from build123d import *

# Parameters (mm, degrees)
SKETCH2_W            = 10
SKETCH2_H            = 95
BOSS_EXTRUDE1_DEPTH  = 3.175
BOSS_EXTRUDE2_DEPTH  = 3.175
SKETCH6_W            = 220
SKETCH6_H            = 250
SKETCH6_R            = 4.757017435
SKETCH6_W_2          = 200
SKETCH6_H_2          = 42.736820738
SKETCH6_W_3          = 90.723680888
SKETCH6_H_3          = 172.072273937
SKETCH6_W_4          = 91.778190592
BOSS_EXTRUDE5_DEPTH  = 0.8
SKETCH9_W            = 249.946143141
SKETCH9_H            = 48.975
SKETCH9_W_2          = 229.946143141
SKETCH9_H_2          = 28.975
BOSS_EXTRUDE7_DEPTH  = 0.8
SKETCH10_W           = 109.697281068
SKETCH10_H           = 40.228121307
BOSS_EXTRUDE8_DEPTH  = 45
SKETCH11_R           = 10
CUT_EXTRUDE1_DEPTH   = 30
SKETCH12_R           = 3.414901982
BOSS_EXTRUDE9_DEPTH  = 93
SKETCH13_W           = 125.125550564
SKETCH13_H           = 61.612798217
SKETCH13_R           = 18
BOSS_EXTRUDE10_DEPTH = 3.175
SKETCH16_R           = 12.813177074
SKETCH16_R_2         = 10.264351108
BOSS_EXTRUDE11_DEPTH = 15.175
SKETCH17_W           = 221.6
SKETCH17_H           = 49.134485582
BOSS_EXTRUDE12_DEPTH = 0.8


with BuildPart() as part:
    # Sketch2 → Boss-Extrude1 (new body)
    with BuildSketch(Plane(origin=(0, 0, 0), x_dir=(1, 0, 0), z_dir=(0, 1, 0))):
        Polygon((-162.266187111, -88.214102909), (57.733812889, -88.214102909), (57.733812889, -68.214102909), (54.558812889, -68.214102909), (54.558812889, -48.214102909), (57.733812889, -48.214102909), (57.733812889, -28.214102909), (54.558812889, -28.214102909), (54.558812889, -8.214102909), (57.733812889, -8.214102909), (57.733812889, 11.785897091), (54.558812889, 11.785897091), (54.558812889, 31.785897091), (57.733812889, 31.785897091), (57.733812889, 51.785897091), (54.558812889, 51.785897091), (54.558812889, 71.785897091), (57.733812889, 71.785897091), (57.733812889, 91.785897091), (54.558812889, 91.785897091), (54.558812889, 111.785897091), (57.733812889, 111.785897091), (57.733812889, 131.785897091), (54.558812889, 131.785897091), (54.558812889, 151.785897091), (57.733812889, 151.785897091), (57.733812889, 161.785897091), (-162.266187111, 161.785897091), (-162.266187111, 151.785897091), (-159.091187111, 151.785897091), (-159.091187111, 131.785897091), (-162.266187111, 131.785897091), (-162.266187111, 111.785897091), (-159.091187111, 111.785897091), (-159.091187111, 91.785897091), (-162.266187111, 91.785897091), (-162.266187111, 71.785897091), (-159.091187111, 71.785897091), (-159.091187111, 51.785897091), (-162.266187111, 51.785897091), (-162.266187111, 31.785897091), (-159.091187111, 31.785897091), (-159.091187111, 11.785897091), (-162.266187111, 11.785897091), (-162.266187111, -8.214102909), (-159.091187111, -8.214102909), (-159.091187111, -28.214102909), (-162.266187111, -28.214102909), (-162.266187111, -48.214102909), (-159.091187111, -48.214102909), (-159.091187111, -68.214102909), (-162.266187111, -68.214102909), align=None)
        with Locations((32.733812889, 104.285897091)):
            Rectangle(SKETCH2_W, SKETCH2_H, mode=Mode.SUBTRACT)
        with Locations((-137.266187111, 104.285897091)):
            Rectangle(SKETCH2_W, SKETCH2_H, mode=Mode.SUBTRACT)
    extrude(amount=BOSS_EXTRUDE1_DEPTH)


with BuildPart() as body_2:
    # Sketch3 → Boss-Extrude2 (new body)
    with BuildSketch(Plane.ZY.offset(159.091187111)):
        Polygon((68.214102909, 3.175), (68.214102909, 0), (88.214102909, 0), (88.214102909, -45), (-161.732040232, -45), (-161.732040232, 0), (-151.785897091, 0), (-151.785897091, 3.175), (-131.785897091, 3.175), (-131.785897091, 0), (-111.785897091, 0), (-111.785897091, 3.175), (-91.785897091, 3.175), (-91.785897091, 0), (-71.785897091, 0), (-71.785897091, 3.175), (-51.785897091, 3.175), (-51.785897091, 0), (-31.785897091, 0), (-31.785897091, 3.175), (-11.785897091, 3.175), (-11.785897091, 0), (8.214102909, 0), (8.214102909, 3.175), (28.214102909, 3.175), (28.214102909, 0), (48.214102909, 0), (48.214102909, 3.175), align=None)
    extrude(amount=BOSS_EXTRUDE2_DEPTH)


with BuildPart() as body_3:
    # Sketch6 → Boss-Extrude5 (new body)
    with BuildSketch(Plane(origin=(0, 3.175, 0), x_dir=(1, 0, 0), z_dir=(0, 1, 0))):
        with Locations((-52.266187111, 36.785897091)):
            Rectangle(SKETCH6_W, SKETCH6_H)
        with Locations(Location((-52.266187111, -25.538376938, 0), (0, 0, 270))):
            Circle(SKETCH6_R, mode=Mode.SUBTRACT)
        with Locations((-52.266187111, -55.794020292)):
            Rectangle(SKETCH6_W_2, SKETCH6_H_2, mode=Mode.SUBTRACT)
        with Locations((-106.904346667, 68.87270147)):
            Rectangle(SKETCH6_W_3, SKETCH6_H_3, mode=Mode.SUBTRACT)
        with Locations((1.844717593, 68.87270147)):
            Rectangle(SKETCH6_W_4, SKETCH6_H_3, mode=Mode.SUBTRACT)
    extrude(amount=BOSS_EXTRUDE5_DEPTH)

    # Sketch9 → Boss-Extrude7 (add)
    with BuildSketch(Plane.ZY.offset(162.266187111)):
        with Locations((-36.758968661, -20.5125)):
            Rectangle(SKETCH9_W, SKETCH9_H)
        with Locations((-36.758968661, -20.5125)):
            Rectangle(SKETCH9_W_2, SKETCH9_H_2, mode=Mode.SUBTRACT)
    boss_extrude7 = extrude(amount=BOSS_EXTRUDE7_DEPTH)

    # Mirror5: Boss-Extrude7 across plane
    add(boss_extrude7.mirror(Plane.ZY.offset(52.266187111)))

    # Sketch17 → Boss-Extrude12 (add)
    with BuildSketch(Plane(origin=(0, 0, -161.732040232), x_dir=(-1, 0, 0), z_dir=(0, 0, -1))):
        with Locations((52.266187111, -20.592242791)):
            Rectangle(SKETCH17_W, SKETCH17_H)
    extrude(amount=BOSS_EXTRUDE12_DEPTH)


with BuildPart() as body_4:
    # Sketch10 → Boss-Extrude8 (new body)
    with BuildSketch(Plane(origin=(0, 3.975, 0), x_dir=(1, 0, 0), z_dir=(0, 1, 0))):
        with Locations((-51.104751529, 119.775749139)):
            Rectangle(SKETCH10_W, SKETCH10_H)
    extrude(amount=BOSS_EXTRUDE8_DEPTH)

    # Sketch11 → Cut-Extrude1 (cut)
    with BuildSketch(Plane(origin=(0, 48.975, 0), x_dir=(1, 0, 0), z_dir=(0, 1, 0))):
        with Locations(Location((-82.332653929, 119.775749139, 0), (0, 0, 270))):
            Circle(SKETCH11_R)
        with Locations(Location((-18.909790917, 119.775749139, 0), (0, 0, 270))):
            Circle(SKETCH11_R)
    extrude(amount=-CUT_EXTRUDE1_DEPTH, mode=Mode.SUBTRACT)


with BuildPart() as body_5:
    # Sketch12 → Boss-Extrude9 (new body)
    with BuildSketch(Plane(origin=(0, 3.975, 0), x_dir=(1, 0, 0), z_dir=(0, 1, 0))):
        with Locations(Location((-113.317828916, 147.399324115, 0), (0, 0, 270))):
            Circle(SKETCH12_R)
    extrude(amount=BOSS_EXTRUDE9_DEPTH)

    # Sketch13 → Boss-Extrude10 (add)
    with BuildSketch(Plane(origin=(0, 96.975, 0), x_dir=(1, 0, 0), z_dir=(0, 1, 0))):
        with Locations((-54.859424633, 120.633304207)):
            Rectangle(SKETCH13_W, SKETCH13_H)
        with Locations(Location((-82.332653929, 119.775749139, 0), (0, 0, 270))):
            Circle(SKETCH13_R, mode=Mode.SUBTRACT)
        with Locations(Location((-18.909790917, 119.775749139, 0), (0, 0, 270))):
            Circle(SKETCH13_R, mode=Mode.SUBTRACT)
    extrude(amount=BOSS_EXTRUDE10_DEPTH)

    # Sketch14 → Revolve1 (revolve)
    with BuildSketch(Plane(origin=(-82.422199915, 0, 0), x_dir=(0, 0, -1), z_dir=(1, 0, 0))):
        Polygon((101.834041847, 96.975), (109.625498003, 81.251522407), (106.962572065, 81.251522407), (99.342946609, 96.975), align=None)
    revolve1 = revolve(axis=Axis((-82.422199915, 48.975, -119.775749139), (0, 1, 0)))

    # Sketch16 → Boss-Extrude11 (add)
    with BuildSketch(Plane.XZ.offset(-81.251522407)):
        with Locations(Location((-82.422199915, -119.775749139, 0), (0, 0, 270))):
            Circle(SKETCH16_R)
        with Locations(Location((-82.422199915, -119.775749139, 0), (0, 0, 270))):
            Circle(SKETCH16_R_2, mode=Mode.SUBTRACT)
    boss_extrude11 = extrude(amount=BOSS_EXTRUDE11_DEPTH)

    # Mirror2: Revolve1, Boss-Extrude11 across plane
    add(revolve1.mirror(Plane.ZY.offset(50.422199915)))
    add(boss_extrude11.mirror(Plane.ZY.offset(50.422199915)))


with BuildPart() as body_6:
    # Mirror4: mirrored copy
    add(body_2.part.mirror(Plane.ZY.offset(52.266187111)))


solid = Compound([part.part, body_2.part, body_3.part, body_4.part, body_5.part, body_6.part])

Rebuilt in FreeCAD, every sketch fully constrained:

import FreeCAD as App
import Part
import Sketcher
Q = App.Units.Quantity


def add_polygon(sketch, points):
    """Adds a closed chain of lines whose ends are joined by coincident constraints."""
    first, n = sketch.GeometryCount, len(points)
    for a, b in zip(points, points[1:] + points[:1]):
        sketch.addGeometry(Part.LineSegment(App.Vector(*a, 0), App.Vector(*b, 0)), False)
    for i in range(n):
        sketch.addConstraint(Sketcher.Constraint("Coincident", first + i, 2, first + (i + 1) % n, 1))

doc = App.newDocument("Part")
body = doc.addObject("PartDesign::Body", "Body")

# Sketch on XZ plane
sketch1 = body.newObject("Sketcher::SketchObject", "Sketch")
sketch1.AttachmentSupport = (doc.getObject("XZ_Plane"), [""])
sketch1.MapMode = "FlatFace"
add_polygon(sketch1, [(-162.3, 88.2), (57.7, 88.2), (57.7, 68.2), (54.6, 68.2), (54.6, 48.2), (57.7, 48.2), (57.7, 28.2), (54.6, 28.2), (54.6, 8.2), (57.7, 8.2), (57.7, -11.8), (54.6, -11.8), (54.6, -31.8), (57.7, -31.8), (57.7, -51.8), (54.6, -51.8), (54.6, -71.8), (57.7, -71.8), (57.7, -91.8), (54.6, -91.8), (54.6, -111.8), (57.7, -111.8), (57.7, -131.8), (54.6, -131.8), (54.6, -151.8), (57.7, -151.8), (57.7, -161.8), (-162.3, -161.8), (-162.3, -151.8), (-159.1, -151.8), (-159.1, -131.8), (-162.3, -131.8), (-162.3, -111.8), (-159.1, -111.8), (-159.1, -91.8), (-162.3, -91.8), (-162.3, -71.8), (-159.1, -71.8), (-159.1, -51.8), (-162.3, -51.8), (-162.3, -31.8), (-159.1, -31.8), (-159.1, -11.8), (-162.3, -11.8), (-162.3, 8.2), (-159.1, 8.2), (-159.1, 28.2), (-162.3, 28.2), (-162.3, 48.2), (-159.1, 48.2), (-159.1, 68.2), (-162.3, 68.2)])  # lines 0-51
add_polygon(sketch1, [(-132.3, -56.8), (-142.3, -56.8), (-142.3, -151.8), (-132.3, -151.8)])  # lines 52-55
add_polygon(sketch1, [(37.7, -56.8), (27.7, -56.8), (27.7, -151.8), (37.7, -151.8)])  # lines 56-59
sketch1.addConstraint([
    Sketcher.Constraint("Horizontal", 0),
    Sketcher.Constraint("Vertical", 1),
    Sketcher.Constraint("Horizontal", 2),
    Sketcher.Constraint("Vertical", 3),
    Sketcher.Constraint("Horizontal", 4),
    Sketcher.Constraint("Vertical", 5),
    Sketcher.Constraint("Horizontal", 6),
    Sketcher.Constraint("Vertical", 7),
    Sketcher.Constraint("Horizontal", 8),
    Sketcher.Constraint("Vertical", 9),
    Sketcher.Constraint("Horizontal", 10),
    Sketcher.Constraint("Vertical", 11),
    Sketcher.Constraint("Horizontal", 12),
    Sketcher.Constraint("Vertical", 13),
    Sketcher.Constraint("Horizontal", 14),
    Sketcher.Constraint("Vertical", 15),
    Sketcher.Constraint("Horizontal", 16),
    Sketcher.Constraint("Vertical", 17),
    Sketcher.Constraint("Horizontal", 18),
    Sketcher.Constraint("Vertical", 19),
    Sketcher.Constraint("Horizontal", 20),
    Sketcher.Constraint("Vertical", 21),
    Sketcher.Constraint("Horizontal", 22),
    Sketcher.Constraint("Vertical", 23),
    Sketcher.Constraint("Horizontal", 24),
    Sketcher.Constraint("Vertical", 25),
    Sketcher.Constraint("Horizontal", 26),
    Sketcher.Constraint("Vertical", 27),
    Sketcher.Constraint("Horizontal", 28),
    Sketcher.Constraint("Vertical", 29),
    Sketcher.Constraint("Horizontal", 30),
    Sketcher.Constraint("Vertical", 31),
    Sketcher.Constraint("Horizontal", 32),
    Sketcher.Constraint("Vertical", 33),
    Sketcher.Constraint("Horizontal", 34),
    Sketcher.Constraint("Vertical", 35),
    Sketcher.Constraint("Horizontal", 36),
    Sketcher.Constraint("Vertical", 37),
    Sketcher.Constraint("Horizontal", 38),
    Sketcher.Constraint("Vertical", 39),
    Sketcher.Constraint("Horizontal", 40),
    Sketcher.Constraint("Vertical", 41),
    Sketcher.Constraint("Horizontal", 42),
    Sketcher.Constraint("Vertical", 43),
    Sketcher.Constraint("Horizontal", 44),
    Sketcher.Constraint("Vertical", 45),
    Sketcher.Constraint("Horizontal", 46),
    Sketcher.Constraint("Vertical", 47),
    Sketcher.Constraint("Horizontal", 48),
    Sketcher.Constraint("Vertical", 49),
    Sketcher.Constraint("Horizontal", 50),
    Sketcher.Constraint("Vertical", 51),
    Sketcher.Constraint("Horizontal", 52),
    Sketcher.Constraint("Vertical", 53),
    Sketcher.Constraint("Horizontal", 54),
    Sketcher.Constraint("Vertical", 55),
    Sketcher.Constraint("Horizontal", 56),
    Sketcher.Constraint("Vertical", 57),
    Sketcher.Constraint("Horizontal", 58),
    Sketcher.Constraint("Vertical", 59),
    Sketcher.Constraint("Horizontal", 24, 2, 27, 2),
    Sketcher.Constraint("Horizontal", 22, 2, 29, 2),
    Sketcher.Constraint("Horizontal", 20, 2, 31, 2),
    Sketcher.Constraint("Horizontal", 18, 2, 33, 2),
    Sketcher.Constraint("Horizontal", 16, 2, 35, 2),
    Sketcher.Constraint("Horizontal", 14, 2, 37, 2),
    Sketcher.Constraint("Horizontal", 12, 2, 39, 2),
    Sketcher.Constraint("Horizontal", 10, 2, 41, 2),
    Sketcher.Constraint("Horizontal", 8, 2, 43, 2),
    Sketcher.Constraint("Horizontal", 6, 2, 45, 2),
    Sketcher.Constraint("Horizontal", 4, 2, 47, 2),
    Sketcher.Constraint("Horizontal", 2, 2, 49, 2),
    Sketcher.Constraint("Horizontal", 28, 2, 53, 2),
    Sketcher.Constraint("Horizontal", 55, 2, 56, 2),
    Sketcher.Constraint("Horizontal", 54, 2, 57, 2),
    Sketcher.Constraint("Vertical", 1, 2, 4, 2),
    Sketcher.Constraint("Vertical", 3, 2, 6, 2),
    Sketcher.Constraint("Vertical", 5, 2, 8, 2),
    Sketcher.Constraint("Vertical", 7, 2, 10, 2),
    Sketcher.Constraint("Vertical", 9, 2, 12, 2),
    Sketcher.Constraint("Vertical", 11, 2, 14, 2),
    Sketcher.Constraint("Vertical", 13, 2, 16, 2),
    Sketcher.Constraint("Vertical", 15, 2, 18, 2),
    Sketcher.Constraint("Vertical", 17, 2, 20, 2),
    Sketcher.Constraint("Vertical", 19, 2, 22, 2),
    Sketcher.Constraint("Vertical", 21, 2, 24, 2),
    Sketcher.Constraint("Vertical", 27, 2, 30, 2),
    Sketcher.Constraint("Vertical", 29, 2, 32, 2),
    Sketcher.Constraint("Vertical", 31, 2, 34, 2),
    Sketcher.Constraint("Vertical", 33, 2, 36, 2),
    Sketcher.Constraint("Vertical", 35, 2, 38, 2),
    Sketcher.Constraint("Vertical", 37, 2, 40, 2),
    Sketcher.Constraint("Vertical", 39, 2, 42, 2),
    Sketcher.Constraint("Vertical", 41, 2, 44, 2),
    Sketcher.Constraint("Vertical", 43, 2, 46, 2),
    Sketcher.Constraint("Vertical", 45, 2, 48, 2),
    Sketcher.Constraint("Vertical", 47, 2, 50, 2),
    Sketcher.Constraint("Equal", 24, 28),
    Sketcher.Constraint("Equal", 54, 56),
    Sketcher.Constraint("Equal", 1, 3),
    Sketcher.Constraint("Equal", 3, 5),
    Sketcher.Constraint("Equal", 5, 7),
    Sketcher.Constraint("Equal", 7, 9),
    Sketcher.Constraint("Equal", 9, 11),
    Sketcher.Constraint("Equal", 11, 13),
    Sketcher.Constraint("Equal", 13, 15),
    Sketcher.Constraint("Equal", 15, 17),
    Sketcher.Constraint("Equal", 17, 19),
    Sketcher.Constraint("Equal", 19, 21),
    Sketcher.Constraint("Equal", 21, 23),
    Sketcher.Constraint("Equal", 58, 25),
    Sketcher.Constraint("DistanceX", 0, 1, 0, 2, Q("220 mm")),
    Sketcher.Constraint("DistanceX", 52, 2, 52, 1, Q("10 mm")),
    Sketcher.Constraint("DistanceY", 1, 2, 1, 1, Q("20 mm")),
    Sketcher.Constraint("DistanceY", 53, 2, 53, 1, Q("95 mm")),
    Sketcher.Constraint("DistanceX", 38, 2, 52, 2, Q("20 mm")),
    Sketcher.Constraint("DistanceX", 56, 2, 13, 2, Q("30 mm")),
    Sketcher.Constraint("DistanceX", 2, 2, 2, 1, Q("3.175 mm")),
    Sketcher.Constraint("DistanceX", -1, 1, 0, 2, Q("57.733813 mm")),
    Sketcher.Constraint("DistanceY", -1, 1, 0, 2, Q("88.214103 mm")),
])
pad1 = body.newObject("PartDesign::Pad", "Pad")
pad1.Profile = sketch1
pad1.Length = 3.175
pad1.Reversed = True
body2 = doc.addObject("PartDesign::Body", "Body001")

# Sketch on YZ plane
sketch2 = body2.newObject("Sketcher::SketchObject", "Sketch001")
sketch2.AttachmentSupport = (doc.getObject("YZ_Plane001"), [""])
sketch2.MapMode = "FlatFace"
sketch2.AttachmentOffset = App.Placement(App.Vector(0, 0, -159.091187), App.Rotation())
add_polygon(sketch2, [(0, 68.2), (3.2, 68.2), (3.2, 48.2), (0, 48.2), (0, 28.2), (3.2, 28.2), (3.2, 8.2), (0, 8.2), (0, -11.8), (3.2, -11.8), (3.2, -31.8), (0, -31.8), (0, -51.8), (3.2, -51.8), (3.2, -71.8), (0, -71.8), (0, -91.8), (3.2, -91.8), (3.2, -111.8), (0, -111.8), (0, -131.8), (3.2, -131.8), (3.2, -151.8), (0, -151.8), (0, -161.7), (-45, -161.7), (-45, 88.2), (0, 88.2)])  # lines 0-27
sketch2.addConstraint([
    Sketcher.Constraint("Horizontal", 0),
    Sketcher.Constraint("Vertical", 1),
    Sketcher.Constraint("Horizontal", 2),
    Sketcher.Constraint("Vertical", 3),
    Sketcher.Constraint("Horizontal", 4),
    Sketcher.Constraint("Vertical", 5),
    Sketcher.Constraint("Horizontal", 6),
    Sketcher.Constraint("Vertical", 7),
    Sketcher.Constraint("Horizontal", 8),
    Sketcher.Constraint("Vertical", 9),
    Sketcher.Constraint("Horizontal", 10),
    Sketcher.Constraint("Vertical", 11),
    Sketcher.Constraint("Horizontal", 12),
    Sketcher.Constraint("Vertical", 13),
    Sketcher.Constraint("Horizontal", 14),
    Sketcher.Constraint("Vertical", 15),
    Sketcher.Constraint("Horizontal", 16),
    Sketcher.Constraint("Vertical", 17),
    Sketcher.Constraint("Horizontal", 18),
    Sketcher.Constraint("Vertical", 19),
    Sketcher.Constraint("Horizontal", 20),
    Sketcher.Constraint("Vertical", 21),
    Sketcher.Constraint("Horizontal", 22),
    Sketcher.Constraint("Vertical", 23),
    Sketcher.Constraint("Horizontal", 24),
    Sketcher.Constraint("Vertical", 25),
    Sketcher.Constraint("Horizontal", 26),
    Sketcher.Constraint("Vertical", 27),
    Sketcher.Constraint("PointOnObject", 2, 2, -2),
    Sketcher.Constraint("PointOnObject", 6, 2, -2),
    Sketcher.Constraint("PointOnObject", 10, 2, -2),
    Sketcher.Constraint("PointOnObject", 14, 2, -2),
    Sketcher.Constraint("PointOnObject", 18, 2, -2),
    Sketcher.Constraint("PointOnObject", 22, 2, -2),
    Sketcher.Constraint("PointOnObject", 26, 2, -2),
    Sketcher.Constraint("Vertical", 1, 2, 4, 2),
    Sketcher.Constraint("Vertical", 5, 2, 8, 2),
    Sketcher.Constraint("Vertical", 9, 2, 12, 2),
    Sketcher.Constraint("Vertical", 13, 2, 16, 2),
    Sketcher.Constraint("Vertical", 17, 2, 20, 2),
    Sketcher.Constraint("Equal", 1, 3),
    Sketcher.Constraint("Equal", 3, 5),
    Sketcher.Constraint("Equal", 5, 7),
    Sketcher.Constraint("Equal", 7, 9),
    Sketcher.Constraint("Equal", 9, 11),
    Sketcher.Constraint("Equal", 11, 13),
    Sketcher.Constraint("Equal", 13, 15),
    Sketcher.Constraint("Equal", 15, 17),
    Sketcher.Constraint("Equal", 17, 19),
    Sketcher.Constraint("Equal", 19, 21),
    Sketcher.Constraint("Equal", 21, 27),
    Sketcher.Constraint("DistanceX", 24, 2, 24, 1, Q("45 mm")),
    Sketcher.Constraint("DistanceY", 1, 2, 1, 1, Q("20 mm")),
    Sketcher.Constraint("DistanceX", 0, 1, 0, 2, Q("3.175 mm")),
    Sketcher.Constraint("DistanceY", 23, 2, 23, 1, Q("9.946143 mm")),
    Sketcher.Constraint("DistanceY", 23, 2, -1, 1, Q("161.73204 mm")),
])
pad2 = body2.newObject("PartDesign::Pad", "Pad001")
pad2.Profile = sketch2
pad2.Length = 3.175
pad2.Reversed = True
body3 = doc.addObject("PartDesign::Body", "Body002")

# Sketch on XZ plane
sketch3 = body3.newObject("Sketcher::SketchObject", "Sketch002")
sketch3.AttachmentSupport = (doc.getObject("XZ_Plane002"), [""])
sketch3.MapMode = "FlatFace"
sketch3.AttachmentOffset = App.Placement(App.Vector(0, 0, -3.175), App.Rotation())
add_polygon(sketch3, [(-162.3, -161.8), (-162.3, 88.2), (57.7, 88.2), (57.7, -161.8)])  # lines 0-3
add_polygon(sketch3, [(47.7, 77.2), (-152.3, 77.2), (-152.3, 34.4), (47.7, 34.4)])  # lines 4-7
sketch3.addGeometry(Part.Circle(App.Vector(-52.3, 25.5, 0), App.Vector(0, 0, 1), 4.8), False)  # 8
add_polygon(sketch3, [(-61.5, 17.2), (-152.3, 17.2), (-152.3, -154.9), (-61.5, -154.9)])  # lines 9-12
add_polygon(sketch3, [(47.7, 17.2), (-44, 17.2), (-44, -154.9), (47.7, -154.9)])  # lines 13-16
sketch3.addConstraint([
    Sketcher.Constraint("Vertical", 0),
    Sketcher.Constraint("Horizontal", 1),
    Sketcher.Constraint("Vertical", 2),
    Sketcher.Constraint("Horizontal", 3),
    Sketcher.Constraint("Horizontal", 4),
    Sketcher.Constraint("Vertical", 5),
    Sketcher.Constraint("Horizontal", 6),
    Sketcher.Constraint("Vertical", 7),
    Sketcher.Constraint("Horizontal", 9),
    Sketcher.Constraint("Vertical", 10),
    Sketcher.Constraint("Horizontal", 11),
    Sketcher.Constraint("Vertical", 12),
    Sketcher.Constraint("Horizontal", 13),
    Sketcher.Constraint("Vertical", 14),
    Sketcher.Constraint("Horizontal", 15),
    Sketcher.Constraint("Vertical", 16),
    Sketcher.Constraint("Horizontal", 12, 2, 13, 2),
    Sketcher.Constraint("Horizontal", 11, 2, 14, 2),
    Sketcher.Constraint("Vertical", 5, 2, 9, 2),
    Sketcher.Constraint("Vertical", 7, 2, 15, 2),
    Sketcher.Constraint("DistanceX", 1, 1, 1, 2, Q("220 mm")),
    Sketcher.Constraint("DistanceX", 4, 2, 4, 1, Q("200 mm")),
    Sketcher.Constraint("DistanceY", 0, 1, 0, 2, Q("250 mm")),
    Sketcher.Constraint("DistanceX", 0, 2, 8, 3, Q("110 mm")),
    Sketcher.Constraint("DistanceX", 0, 2, 4, 2, Q("10 mm")),
    Sketcher.Constraint("Diameter", 8, Q("9.514035 mm")),
    Sketcher.Constraint("DistanceX", 9, 2, 9, 1, Q("90.723681 mm")),
    Sketcher.Constraint("DistanceX", 13, 2, 13, 1, Q("91.778191 mm")),
    Sketcher.Constraint("DistanceY", 5, 2, 5, 1, Q("42.736821 mm")),
    Sketcher.Constraint("DistanceY", 10, 2, 10, 1, Q("172.072274 mm")),
    Sketcher.Constraint("DistanceY", -1, 1, 4, 2, Q("77.162431 mm")),
    Sketcher.Constraint("DistanceY", 10, 2, -1, 1, Q("154.908838 mm")),
    Sketcher.Constraint("DistanceY", 9, 2, 8, 3, Q("8.374941 mm")),
    Sketcher.Constraint("DistanceY", 3, 2, 10, 2, Q("6.877059 mm")),
    Sketcher.Constraint("DistanceX", 8, 3, -1, 1, Q("52.266187 mm")),
])
pad3 = body3.newObject("PartDesign::Pad", "Pad002")
pad3.Profile = sketch3
pad3.Length = 0.8
pad3.Reversed = True

# Sketch on YZ plane
sketch4 = body3.newObject("Sketcher::SketchObject", "Sketch003")
sketch4.AttachmentSupport = (doc.getObject("YZ_Plane002"), [""])
sketch4.MapMode = "FlatFace"
sketch4.AttachmentOffset = App.Placement(App.Vector(0, 0, -162.266187), App.Rotation())
add_polygon(sketch4, [(4, -162), (-45, -162), (-45, 88), (4, 88)])  # lines 0-3
add_polygon(sketch4, [(-35, 78), (-35, -152), (-6, -152), (-6, 78)])  # lines 4-7
sketch4.addConstraint([
    Sketcher.Constraint("Horizontal", 0),
    Sketcher.Constraint("Vertical", 1),
    Sketcher.Constraint("Horizontal", 2),
    Sketcher.Constraint("Vertical", 3),
    Sketcher.Constraint("Vertical", 4),
    Sketcher.Constraint("Horizontal", 5),
    Sketcher.Constraint("Vertical", 6),
    Sketcher.Constraint("Horizontal", 7),
    Sketcher.Constraint("DistanceX", 0, 2, -1, 1, Q("45 mm")),
    Sketcher.Constraint("DistanceX", 4, 2, -1, 1, Q("35 mm")),
    Sketcher.Constraint("DistanceY", 0, 2, 4, 2, Q("10 mm")),
    Sketcher.Constraint("DistanceX", 5, 2, 3, 2, Q("10 mm")),
    Sketcher.Constraint("DistanceY", 6, 2, 2, 2, Q("10 mm")),
    Sketcher.Constraint("DistanceX", 0, 2, 0, 1, Q("48.975 mm")),
    Sketcher.Constraint("DistanceY", 1, 1, 1, 2, Q("249.946143 mm")),
    Sketcher.Constraint("DistanceY", 0, 2, -1, 1, Q("161.73204 mm")),
])
pad4 = body3.newObject("PartDesign::Pad", "Pad003")
pad4.Profile = sketch4
pad4.Length = 0.8
pad4.Reversed = True
doc.recompute()

datumplane = body3.newObject("PartDesign::Plane", "DatumPlane")
datumplane.AttachmentSupport = (doc.getObject("YZ_Plane002"), [""])
datumplane.MapMode = "FlatFace"
datumplane.AttachmentOffset = App.Placement(App.Vector(0, 0, -52.266187), App.Rotation())
mirrored = body3.newObject("PartDesign::Mirrored", "Mirrored")
mirrored.Originals = [pad4]
mirrored.MirrorPlane = (datumplane, [""])
body3.Tip = mirrored

# Sketch on XY plane
sketch5 = body3.newObject("Sketcher::SketchObject", "Sketch004")
sketch5.AttachmentSupport = (doc.getObject("XY_Plane002"), [""])
sketch5.MapMode = "FlatFace"
sketch5.AttachmentOffset = App.Placement(App.Vector(0, 0, -161.73204), App.Rotation())
add_polygon(sketch5, [(59, 4), (59, -45), (-163, -45), (-163, 4)])  # lines 0-3
sketch5.addConstraint([
    Sketcher.Constraint("Vertical", 0),
    Sketcher.Constraint("Horizontal", 1),
    Sketcher.Constraint("Vertical", 2),
    Sketcher.Constraint("Horizontal", 3),
    Sketcher.Constraint("DistanceX", 1, 2, 1, 1, Q("221.6 mm")),
    Sketcher.Constraint("DistanceY", -1, 1, 2, 2, Q("3.975 mm")),
    Sketcher.Constraint("DistanceY", 0, 2, 0, 1, Q("49.134486 mm")),
    Sketcher.Constraint("DistanceX", -1, 1, 0, 2, Q("58.533813 mm")),
])
pad5 = body3.newObject("PartDesign::Pad", "Pad004")
pad5.Profile = sketch5
pad5.Length = 0.8
pad5.Reversed = True
body4 = doc.addObject("PartDesign::Body", "Body003")

# Sketch on XZ plane
sketch6 = body4.newObject("Sketcher::SketchObject", "Sketch005")
sketch6.AttachmentSupport = (doc.getObject("XZ_Plane003"), [""])
sketch6.MapMode = "FlatFace"
sketch6.AttachmentOffset = App.Placement(App.Vector(0, 0, -3.975), App.Rotation())
add_polygon(sketch6, [(-106, -140), (-106, -100), (4, -100), (4, -140)])  # lines 0-3
sketch6.addConstraint([
    Sketcher.Constraint("Vertical", 0),
    Sketcher.Constraint("Horizontal", 1),
    Sketcher.Constraint("Vertical", 2),
    Sketcher.Constraint("Horizontal", 3),
    Sketcher.Constraint("DistanceX", 1, 1, 1, 2, Q("109.697281 mm")),
    Sketcher.Constraint("DistanceY", 0, 1, 0, 2, Q("40.228121 mm")),
    Sketcher.Constraint("DistanceY", 0, 2, -1, 1, Q("99.661688 mm")),
    Sketcher.Constraint("DistanceX", -1, 1, 1, 2, Q("3.743889 mm")),
])
pad6 = body4.newObject("PartDesign::Pad", "Pad005")
pad6.Profile = sketch6
pad6.Length = 45
pad6.Reversed = True

# Sketch on XZ plane
sketch7 = body4.newObject("Sketcher::SketchObject", "Sketch006")
sketch7.AttachmentSupport = (doc.getObject("XZ_Plane003"), [""])
sketch7.MapMode = "FlatFace"
sketch7.AttachmentOffset = App.Placement(App.Vector(0, 0, -48.975), App.Rotation())
sketch7.addGeometry([
    Part.Circle(App.Vector(-82, -120, 0), App.Vector(0, 0, 1), 10),
    Part.Circle(App.Vector(-19, -120, 0), App.Vector(0, 0, 1), 10),
], False)
sketch7.addConstraint([
    Sketcher.Constraint("Equal", 0, 1),
    Sketcher.Constraint("Horizontal", 0, 3, 1, 3),
    Sketcher.Constraint("Diameter", 0, Q("20 mm")),
    Sketcher.Constraint("DistanceY", 0, 3, -1, 1, Q("119.775749 mm")),
    Sketcher.Constraint("DistanceX", 1, 3, -1, 1, Q("18.909791 mm")),
    Sketcher.Constraint("DistanceX", 0, 3, -1, 1, Q("82.332654 mm")),
])
pocket1 = body4.newObject("PartDesign::Pocket", "Pocket")
pocket1.Profile = sketch7
pocket1.Length = 30
pocket1.Reversed = True
body5 = doc.addObject("PartDesign::Body", "Body004")

# Sketch on XZ plane
sketch8 = body5.newObject("Sketcher::SketchObject", "Sketch007")
sketch8.AttachmentSupport = (doc.getObject("XZ_Plane004"), [""])
sketch8.MapMode = "FlatFace"
sketch8.AttachmentOffset = App.Placement(App.Vector(0, 0, -3.975), App.Rotation())
sketch8.addGeometry(Part.Circle(App.Vector(-113.3, -147.4, 0), App.Vector(0, 0, 1), 3.4), False)
sketch8.addConstraint([
    Sketcher.Constraint("Diameter", 0, Q("6.829804 mm")),
    Sketcher.Constraint("DistanceX", 0, 3, -1, 1, Q("113.317829 mm")),
    Sketcher.Constraint("DistanceY", 0, 3, -1, 1, Q("147.399324 mm")),
])
pad7 = body5.newObject("PartDesign::Pad", "Pad006")
pad7.Profile = sketch8
pad7.Length = 93
pad7.Reversed = True

# Sketch on XZ plane
sketch9 = body5.newObject("Sketcher::SketchObject", "Sketch008")
sketch9.AttachmentSupport = (doc.getObject("XZ_Plane004"), [""])
sketch9.MapMode = "FlatFace"
sketch9.AttachmentOffset = App.Placement(App.Vector(0, 0, -96.975), App.Rotation())
add_polygon(sketch9, [(-117, -151), (-117, -90), (8, -90), (8, -151)])  # lines 0-3
sketch9.addGeometry(Part.Circle(App.Vector(-82, -120, 0), App.Vector(0, 0, 1), 18), False)  # 4
sketch9.addGeometry(Part.Circle(App.Vector(-19, -120, 0), App.Vector(0, 0, 1), 18), False)  # 5
sketch9.addConstraint([
    Sketcher.Constraint("Vertical", 0),
    Sketcher.Constraint("Horizontal", 1),
    Sketcher.Constraint("Vertical", 2),
    Sketcher.Constraint("Horizontal", 3),
    Sketcher.Constraint("Equal", 4, 5),
    Sketcher.Constraint("Horizontal", 4, 3, 5, 3),
    Sketcher.Constraint("Diameter", 4, Q("36 mm")),
    Sketcher.Constraint("DistanceY", 0, 1, 0, 2, Q("61.612798 mm")),
    Sketcher.Constraint("DistanceX", 1, 1, 1, 2, Q("125.125551 mm")),
    Sketcher.Constraint("DistanceX", 0, 2, -1, 1, Q("117.4222 mm")),
    Sketcher.Constraint("DistanceY", 4, 3, -1, 1, Q("119.775749 mm")),
    Sketcher.Constraint("DistanceX", 5, 3, -1, 1, Q("18.909791 mm")),
    Sketcher.Constraint("DistanceX", 4, 3, -1, 1, Q("82.332654 mm")),
    Sketcher.Constraint("DistanceY", 0, 2, -1, 1, Q("89.826905 mm")),
])
pad8 = body5.newObject("PartDesign::Pad", "Pad007")
pad8.Profile = sketch9
pad8.Length = 3.175
pad8.Reversed = True

# Sketch on YZ plane
sketch10 = body5.newObject("Sketcher::SketchObject", "Sketch009")
sketch10.AttachmentSupport = (doc.getObject("YZ_Plane004"), [""])
sketch10.MapMode = "FlatFace"
sketch10.AttachmentOffset = App.Placement(App.Vector(0, 0, -82.4222), App.Rotation())
add_polygon(sketch10, [(81.3, -109.6), (97, -101.8), (97, -99.3), (81.3, -107)])  # lines 0-3
sketch10.addGeometry(Part.LineSegment(App.Vector(81.3, -119.8, 0), App.Vector(97, -119.8, 0)), True)  # axis
sketch10.addConstraint([
    Sketcher.Constraint("Vertical", 1),
    Sketcher.Constraint("Vertical", 3),
    Sketcher.Constraint("Horizontal", 4),
    Sketcher.Constraint("Vertical", 3, 2, 4, 1),
    Sketcher.Constraint("Vertical", 1, 2, 4, 2),
    Sketcher.Constraint("DistanceX", -1, 1, 0, 2, Q("96.975 mm")),
    Sketcher.Constraint("DistanceY", 3, 2, -1, 1, Q("109.625498 mm")),
    Sketcher.Constraint("Distance", 2, Q("17.472448 mm")),
    Sketcher.Constraint("DistanceX", 4, 1, 4, 2, Q("15.723478 mm")),
    Sketcher.Constraint("DistanceY", 1, 1, 1, 2, Q("2.491095 mm")),
    Sketcher.Constraint("DistanceY", 3, 2, 3, 1, Q("2.662926 mm")),
    Sketcher.Constraint("DistanceY", 4, 1, -1, 1, Q("119.775749 mm")),
])
revolution = body5.newObject("PartDesign::Revolution", "Revolution")
revolution.Profile = sketch10
revolution.ReferenceAxis = (sketch10, ["Axis0"])
revolution.Angle = 360

# Sketch on XZ plane
sketch11 = body5.newObject("Sketcher::SketchObject", "Sketch010")
sketch11.AttachmentSupport = (doc.getObject("XZ_Plane004"), [""])
sketch11.MapMode = "FlatFace"
sketch11.AttachmentOffset = App.Placement(App.Vector(0, 0, -81.251522), App.Rotation())
sketch11.addGeometry([
    Part.Circle(App.Vector(-82, -120, 0), App.Vector(0, 0, 1), 13),
    Part.Circle(App.Vector(-82, -120, 0), App.Vector(0, 0, 1), 10),
], False)
sketch11.addConstraint([
    Sketcher.Constraint("Coincident", 1, 3, 0, 3),
    Sketcher.Constraint("Diameter", 0, Q("25.626354 mm")),
    Sketcher.Constraint("Diameter", 1, Q("20.528702 mm")),
    Sketcher.Constraint("DistanceX", 0, 3, -1, 1, Q("82.4222 mm")),
    Sketcher.Constraint("DistanceY", 0, 3, -1, 1, Q("119.775749 mm")),
])
pad9 = body5.newObject("PartDesign::Pad", "Pad008")
pad9.Profile = sketch11
pad9.Length = 15.175
doc.recompute()

datumplane2 = body5.newObject("PartDesign::Plane", "DatumPlane001")
datumplane2.AttachmentSupport = (doc.getObject("YZ_Plane004"), [""])
datumplane2.MapMode = "FlatFace"
datumplane2.AttachmentOffset = App.Placement(App.Vector(0, 0, -50.4222), App.Rotation())
mirrored2 = body5.newObject("PartDesign::Mirrored", "Mirrored001")
mirrored2.Originals = [revolution, pad9]
mirrored2.MirrorPlane = (datumplane2, [""])
body5.Tip = mirrored2
body6 = doc.addObject("PartDesign::Body", "Body005")
doc.recompute()

mirroring = doc.addObject("Part::Mirroring", "Mirroring")
mirroring.Source = body2
mirroring.Base = App.Vector(-52.266187, 0, 0)
mirroring.Normal = App.Vector(-1, 0, 0)
body6.BaseFeature = mirroring
doc.recompute()
mirroring.Visibility = False

doc.recompute()
